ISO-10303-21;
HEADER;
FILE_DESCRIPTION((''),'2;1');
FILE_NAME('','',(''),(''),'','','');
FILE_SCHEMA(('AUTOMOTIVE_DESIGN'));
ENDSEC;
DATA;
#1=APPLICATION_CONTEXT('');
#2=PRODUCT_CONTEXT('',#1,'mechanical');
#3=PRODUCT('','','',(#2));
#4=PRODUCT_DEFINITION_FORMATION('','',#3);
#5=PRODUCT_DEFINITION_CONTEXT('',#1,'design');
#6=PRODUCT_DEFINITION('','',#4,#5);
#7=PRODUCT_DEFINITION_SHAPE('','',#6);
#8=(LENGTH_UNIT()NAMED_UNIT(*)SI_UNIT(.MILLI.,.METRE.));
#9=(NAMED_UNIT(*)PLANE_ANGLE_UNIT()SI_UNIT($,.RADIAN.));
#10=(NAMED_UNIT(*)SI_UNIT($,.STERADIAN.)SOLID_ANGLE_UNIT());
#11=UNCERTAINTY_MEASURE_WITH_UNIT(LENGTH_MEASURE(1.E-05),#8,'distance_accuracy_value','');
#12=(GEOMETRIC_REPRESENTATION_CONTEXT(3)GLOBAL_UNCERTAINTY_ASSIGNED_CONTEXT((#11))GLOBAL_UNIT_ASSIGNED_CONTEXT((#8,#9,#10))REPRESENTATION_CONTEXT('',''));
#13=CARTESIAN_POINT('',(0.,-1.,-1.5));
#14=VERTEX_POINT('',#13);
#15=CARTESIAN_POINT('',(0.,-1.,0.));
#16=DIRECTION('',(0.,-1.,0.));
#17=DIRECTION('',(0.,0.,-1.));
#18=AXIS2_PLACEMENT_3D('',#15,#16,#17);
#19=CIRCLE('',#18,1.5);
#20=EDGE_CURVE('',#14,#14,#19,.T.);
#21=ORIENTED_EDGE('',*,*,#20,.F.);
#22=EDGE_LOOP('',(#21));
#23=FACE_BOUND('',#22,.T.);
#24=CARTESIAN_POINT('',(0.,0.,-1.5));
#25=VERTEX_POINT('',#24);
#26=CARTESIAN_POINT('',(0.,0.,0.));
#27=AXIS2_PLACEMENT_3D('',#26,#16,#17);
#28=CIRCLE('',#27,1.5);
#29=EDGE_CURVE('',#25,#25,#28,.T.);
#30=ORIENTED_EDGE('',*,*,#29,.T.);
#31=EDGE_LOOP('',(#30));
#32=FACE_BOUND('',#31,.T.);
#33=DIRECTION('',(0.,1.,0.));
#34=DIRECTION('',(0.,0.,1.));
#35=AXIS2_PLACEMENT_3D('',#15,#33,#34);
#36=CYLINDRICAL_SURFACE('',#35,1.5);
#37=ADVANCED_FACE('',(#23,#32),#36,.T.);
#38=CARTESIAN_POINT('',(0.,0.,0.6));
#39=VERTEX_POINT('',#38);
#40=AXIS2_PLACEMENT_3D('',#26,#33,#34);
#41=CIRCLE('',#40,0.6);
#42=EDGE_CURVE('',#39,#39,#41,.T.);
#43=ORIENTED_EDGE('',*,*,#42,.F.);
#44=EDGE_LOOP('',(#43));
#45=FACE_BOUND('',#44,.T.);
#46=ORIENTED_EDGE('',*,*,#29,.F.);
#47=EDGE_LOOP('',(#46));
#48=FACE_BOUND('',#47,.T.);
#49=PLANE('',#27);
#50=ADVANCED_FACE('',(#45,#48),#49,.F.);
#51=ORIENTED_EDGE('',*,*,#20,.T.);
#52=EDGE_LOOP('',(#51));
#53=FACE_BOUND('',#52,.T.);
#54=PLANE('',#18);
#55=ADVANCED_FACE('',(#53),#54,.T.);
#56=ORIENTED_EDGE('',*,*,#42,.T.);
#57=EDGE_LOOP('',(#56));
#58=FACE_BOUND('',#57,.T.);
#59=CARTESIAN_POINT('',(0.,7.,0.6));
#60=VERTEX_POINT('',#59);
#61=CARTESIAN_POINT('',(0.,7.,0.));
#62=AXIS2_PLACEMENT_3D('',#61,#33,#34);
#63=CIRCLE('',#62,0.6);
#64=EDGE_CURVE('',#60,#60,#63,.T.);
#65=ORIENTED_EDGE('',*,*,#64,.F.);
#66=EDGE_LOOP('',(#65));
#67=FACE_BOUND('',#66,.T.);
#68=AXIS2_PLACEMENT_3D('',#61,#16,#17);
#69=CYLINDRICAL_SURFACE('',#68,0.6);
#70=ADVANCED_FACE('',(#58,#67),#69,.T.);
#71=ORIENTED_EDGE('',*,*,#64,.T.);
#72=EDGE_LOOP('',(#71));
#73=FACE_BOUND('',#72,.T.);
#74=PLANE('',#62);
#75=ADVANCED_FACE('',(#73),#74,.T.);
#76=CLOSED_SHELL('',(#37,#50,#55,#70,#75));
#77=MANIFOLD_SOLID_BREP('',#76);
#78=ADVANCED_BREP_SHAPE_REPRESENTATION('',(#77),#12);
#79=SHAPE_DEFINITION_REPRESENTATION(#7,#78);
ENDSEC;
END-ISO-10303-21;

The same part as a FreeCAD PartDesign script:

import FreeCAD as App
import Part
import Sketcher

doc = App.newDocument("Part")
body = doc.addObject("PartDesign::Body", "Body")

# Sketch on XZ plane
sketch1 = doc.addObject("Sketcher::SketchObject", "Sketch")
body.addObject(sketch1)
sketch1.AttachmentSupport = (doc.XZ_Plane, [""])
sketch1.MapMode = "FlatFace"
sketch1.addGeometry(Part.Circle(App.Vector(0, 0, 0), App.Vector(0, 0, 1), 0.6), False)
sketch1.addConstraint(Sketcher.Constraint("Coincident", 0, 3, -1, 1))
sketch1.addConstraint(Sketcher.Constraint("Diameter", 0, 1.2))
pad1 = doc.addObject("PartDesign::Pad", "Pad")
body.addObject(pad1)
pad1.Profile = sketch1
pad1.Length = 7
pad1.Reversed = True

# Sketch on XZ plane
sketch2 = doc.addObject("Sketcher::SketchObject", "Sketch001")
body.addObject(sketch2)
sketch2.AttachmentSupport = (doc.XZ_Plane, [""])
sketch2.MapMode = "FlatFace"
sketch2.addGeometry(Part.Circle(App.Vector(0, 0, 0), App.Vector(0, 0, 1), 1.5), False)
sketch2.addConstraint(Sketcher.Constraint("Coincident", 0, 3, -1, 1))
sketch2.addConstraint(Sketcher.Constraint("Diameter", 0, 3.0))
pad2 = doc.addObject("PartDesign::Pad", "Pad001")
body.addObject(pad2)
pad2.Profile = sketch2
pad2.Length = 1

doc.recompute()
